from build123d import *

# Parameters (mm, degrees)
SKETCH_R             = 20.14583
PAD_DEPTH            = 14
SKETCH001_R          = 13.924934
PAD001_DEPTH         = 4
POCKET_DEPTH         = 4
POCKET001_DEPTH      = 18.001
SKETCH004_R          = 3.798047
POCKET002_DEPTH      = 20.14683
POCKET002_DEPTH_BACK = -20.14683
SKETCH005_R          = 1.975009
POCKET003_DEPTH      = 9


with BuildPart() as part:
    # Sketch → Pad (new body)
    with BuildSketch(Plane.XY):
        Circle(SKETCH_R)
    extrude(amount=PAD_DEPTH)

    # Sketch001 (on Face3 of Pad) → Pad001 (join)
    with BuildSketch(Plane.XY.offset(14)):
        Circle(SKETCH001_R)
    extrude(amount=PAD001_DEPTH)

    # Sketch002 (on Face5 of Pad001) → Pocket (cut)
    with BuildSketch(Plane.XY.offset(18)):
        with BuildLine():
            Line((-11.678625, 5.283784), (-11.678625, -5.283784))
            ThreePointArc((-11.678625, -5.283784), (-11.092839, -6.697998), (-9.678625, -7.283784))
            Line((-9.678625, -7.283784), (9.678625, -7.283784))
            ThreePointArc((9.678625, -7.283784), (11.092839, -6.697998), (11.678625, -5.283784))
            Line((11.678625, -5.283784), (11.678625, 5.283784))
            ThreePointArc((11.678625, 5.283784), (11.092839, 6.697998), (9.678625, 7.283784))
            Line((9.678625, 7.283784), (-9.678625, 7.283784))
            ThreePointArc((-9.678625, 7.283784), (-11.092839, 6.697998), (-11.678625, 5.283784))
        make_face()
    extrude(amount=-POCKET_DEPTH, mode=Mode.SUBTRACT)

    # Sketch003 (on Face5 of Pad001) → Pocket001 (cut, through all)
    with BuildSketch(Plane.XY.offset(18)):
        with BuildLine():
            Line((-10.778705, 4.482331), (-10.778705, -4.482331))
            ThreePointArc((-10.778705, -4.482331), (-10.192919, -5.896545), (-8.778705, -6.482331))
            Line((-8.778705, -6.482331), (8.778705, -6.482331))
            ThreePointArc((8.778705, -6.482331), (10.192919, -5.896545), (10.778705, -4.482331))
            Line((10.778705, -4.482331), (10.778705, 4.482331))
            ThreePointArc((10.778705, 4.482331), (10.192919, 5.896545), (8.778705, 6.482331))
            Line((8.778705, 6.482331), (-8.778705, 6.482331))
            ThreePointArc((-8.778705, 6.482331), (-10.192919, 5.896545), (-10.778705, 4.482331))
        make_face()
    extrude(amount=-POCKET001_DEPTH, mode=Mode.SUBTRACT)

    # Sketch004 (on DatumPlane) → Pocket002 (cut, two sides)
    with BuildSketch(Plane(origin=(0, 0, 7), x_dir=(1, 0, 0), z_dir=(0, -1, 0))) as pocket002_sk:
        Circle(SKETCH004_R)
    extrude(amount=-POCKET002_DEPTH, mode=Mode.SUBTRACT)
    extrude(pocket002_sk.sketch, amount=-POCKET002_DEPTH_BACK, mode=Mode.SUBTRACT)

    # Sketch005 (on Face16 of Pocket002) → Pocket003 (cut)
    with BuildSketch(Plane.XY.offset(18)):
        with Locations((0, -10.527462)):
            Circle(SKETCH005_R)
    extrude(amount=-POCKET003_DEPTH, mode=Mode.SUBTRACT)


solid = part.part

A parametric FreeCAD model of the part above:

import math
import FreeCAD as App
import Part
import Sketcher

V = App.Vector

doc = App.newDocument("Part")
body = doc.addObject("PartDesign::Body", "Body")

# Sketch on XY plane
sketch1 = doc.addObject("Sketcher::SketchObject", "Sketch")
body.addObject(sketch1)
sketch1.AttachmentSupport = (doc.XY_Plane, [""])
sketch1.MapMode = "FlatFace"
sketch1.addGeometry(Part.Circle(V(0, 0, 0), V(0, 0, 1), 20), False)
sketch1.addConstraint([
    Sketcher.Constraint("Coincident", 0, 3, -1, 1),
    Sketcher.Constraint("Diameter", 0, 40.29166),
])
pad1 = doc.addObject("PartDesign::Pad", "Pad")
body.addObject(pad1)
pad1.Profile = sketch1
pad1.Length = 14

# Sketch on XY plane
sketch2 = doc.addObject("Sketcher::SketchObject", "Sketch001")
body.addObject(sketch2)
sketch2.AttachmentSupport = (doc.XY_Plane, [""])
sketch2.MapMode = "FlatFace"
sketch2.AttachmentOffset = App.Placement(V(0, 0, 14), App.Rotation())
sketch2.addGeometry(Part.Circle(V(0, 0, 0), V(0, 0, 1), 14), False)
sketch2.addConstraint([
    Sketcher.Constraint("Coincident", 0, 3, -1, 1),
    Sketcher.Constraint("Diameter", 0, 27.849868),
])
pad2 = doc.addObject("PartDesign::Pad", "Pad001")
body.addObject(pad2)
pad2.Profile = sketch2
pad2.Length = 4

# Sketch on XY plane
sketch3 = doc.addObject("Sketcher::SketchObject", "Sketch002")
body.addObject(sketch3)
sketch3.AttachmentSupport = (doc.XY_Plane, [""])
sketch3.MapMode = "FlatFace"
sketch3.AttachmentOffset = App.Placement(V(0, 0, 18), App.Rotation())
sketch3.addGeometry([
    Part.LineSegment(V(-11.7, 5.3, 0), V(-11.7, -5.3, 0)),  # 0
    Part.ArcOfCircle(Part.Circle(V(-9.7, -5.3, 0), V(0, 0, 1), 2), math.radians(180), math.radians(270)),  # 1
    Part.LineSegment(V(-9.7, -7.3, 0), V(9.7, -7.3, 0)),  # 2
    Part.ArcOfCircle(Part.Circle(V(9.7, -5.3, 0), V(0, 0, 1), 2), math.radians(-90), math.radians(0)),  # 3
    Part.LineSegment(V(11.7, -5.3, 0), V(11.7, 5.3, 0)),  # 4
    Part.ArcOfCircle(Part.Circle(V(9.7, 5.3, 0), V(0, 0, 1), 2), math.radians(0), math.radians(90)),  # 5
    Part.LineSegment(V(9.7, 7.3, 0), V(-9.7, 7.3, 0)),  # 6
    Part.ArcOfCircle(Part.Circle(V(-9.7, 5.3, 0), V(0, 0, 1), 2), math.radians(90), math.radians(180)),  # 7
], False)
sketch3.addConstraint([
    Sketcher.Constraint("Tangent", 0, 2, 1, 1),
    Sketcher.Constraint("Tangent", 1, 2, 2, 1),
    Sketcher.Constraint("Tangent", 2, 2, 3, 1),
    Sketcher.Constraint("Tangent", 3, 2, 4, 1),
    Sketcher.Constraint("Tangent", 4, 2, 5, 1),
    Sketcher.Constraint("Tangent", 5, 2, 6, 1),
    Sketcher.Constraint("Tangent", 6, 2, 7, 1),
    Sketcher.Constraint("Tangent", 7, 2, 0, 1),
    Sketcher.Constraint("Vertical", 0),
    Sketcher.Constraint("Horizontal", 2),
    Sketcher.Constraint("Vertical", 4),
    Sketcher.Constraint("Horizontal", 6),
    Sketcher.Constraint("Equal", 1, 3),
    Sketcher.Constraint("Equal", 3, 5),
    Sketcher.Constraint("Equal", 5, 7),
    Sketcher.Constraint("Symmetric", 1, 3, 5, 3, -1, 1),
    Sketcher.Constraint("Radius", 1, 1.999999),
    Sketcher.Constraint("DistanceX", 2, 1, 2, 2, 19.35725),
    Sketcher.Constraint("DistanceY", 0, 2, 0, 1, 10.567568),
])
pocket1 = doc.addObject("PartDesign::Pocket", "Pocket")
body.addObject(pocket1)
pocket1.Profile = sketch3
pocket1.Length = 4

# Sketch on XY plane
sketch4 = doc.addObject("Sketcher::SketchObject", "Sketch003")
body.addObject(sketch4)
sketch4.AttachmentSupport = (doc.XY_Plane, [""])
sketch4.MapMode = "FlatFace"
sketch4.AttachmentOffset = App.Placement(V(0, 0, 18), App.Rotation())
sketch4.addGeometry([
    Part.LineSegment(V(-10.8, 4.5, 0), V(-10.8, -4.5, 0)),  # 0
    Part.ArcOfCircle(Part.Circle(V(-8.8, -4.5, 0), V(0, 0, 1), 2), math.radians(180), math.radians(270)),  # 1
    Part.LineSegment(V(-8.8, -6.5, 0), V(8.8, -6.5, 0)),  # 2
    Part.ArcOfCircle(Part.Circle(V(8.8, -4.5, 0), V(0, 0, 1), 2), math.radians(-90), math.radians(0)),  # 3
    Part.LineSegment(V(10.8, -4.5, 0), V(10.8, 4.5, 0)),  # 4
    Part.ArcOfCircle(Part.Circle(V(8.8, 4.5, 0), V(0, 0, 1), 2), math.radians(0), math.radians(90)),  # 5
    Part.LineSegment(V(8.8, 6.5, 0), V(-8.8, 6.5, 0)),  # 6
    Part.ArcOfCircle(Part.Circle(V(-8.8, 4.5, 0), V(0, 0, 1), 2), math.radians(90), math.radians(180)),  # 7
], False)
sketch4.addConstraint([
    Sketcher.Constraint("Tangent", 0, 2, 1, 1),
    Sketcher.Constraint("Tangent", 1, 2, 2, 1),
    Sketcher.Constraint("Tangent", 2, 2, 3, 1),
    Sketcher.Constraint("Tangent", 3, 2, 4, 1),
    Sketcher.Constraint("Tangent", 4, 2, 5, 1),
    Sketcher.Constraint("Tangent", 5, 2, 6, 1),
    Sketcher.Constraint("Tangent", 6, 2, 7, 1),
    Sketcher.Constraint("Tangent", 7, 2, 0, 1),
    Sketcher.Constraint("Vertical", 0),
    Sketcher.Constraint("Horizontal", 2),
    Sketcher.Constraint("Vertical", 4),
    Sketcher.Constraint("Horizontal", 6),
    Sketcher.Constraint("Equal", 1, 3),
    Sketcher.Constraint("Equal", 3, 5),
    Sketcher.Constraint("Equal", 5, 7),
    Sketcher.Constraint("Symmetric", 1, 3, 5, 3, -1, 1),
    Sketcher.Constraint("Radius", 1, 1.999999),
    Sketcher.Constraint("DistanceX", 2, 1, 2, 2, 17.55741),
    Sketcher.Constraint("DistanceY", 0, 2, 0, 1, 8.964662),
])
pocket2 = doc.addObject("PartDesign::Pocket", "Pocket001")
body.addObject(pocket2)
pocket2.Profile = sketch4
pocket2.Type = "ThroughAll"

# Sketch on XZ plane
sketch5 = doc.addObject("Sketcher::SketchObject", "Sketch004")
body.addObject(sketch5)
sketch5.AttachmentSupport = (doc.XZ_Plane, [""])
sketch5.MapMode = "FlatFace"
sketch5.addGeometry(Part.Circle(V(0, 7, 0), V(0, 0, 1), 3.8), False)
sketch5.addConstraint([
    Sketcher.Constraint("PointOnObject", 0, 3, -2),
    Sketcher.Constraint("DistanceY", -1, 1, 0, 3, 7.0),
    Sketcher.Constraint("Diameter", 0, 7.596094),
])
pocket3 = doc.addObject("PartDesign::Pocket", "Pocket002")
body.addObject(pocket3)
pocket3.Profile = sketch5
pocket3.Type = "ThroughAll"
pocket3.Midplane = True

# Sketch on XY plane
sketch6 = doc.addObject("Sketcher::SketchObject", "Sketch005")
body.addObject(sketch6)
sketch6.AttachmentSupport = (doc.XY_Plane, [""])
sketch6.MapMode = "FlatFace"
sketch6.AttachmentOffset = App.Placement(V(0, 0, 18), App.Rotation())
sketch6.addGeometry(Part.Circle(V(0, -10.5, 0), V(0, 0, 1), 2), False)
sketch6.addConstraint([
    Sketcher.Constraint("PointOnObject", 0, 3, -2),
    Sketcher.Constraint("Diameter", 0, 3.950018),
    Sketcher.Constraint("DistanceY", 0, 3, -1, 1, 10.527462),
])
pocket4 = doc.addObject("PartDesign::Pocket", "Pocket003")
body.addObject(pocket4)
pocket4.Profile = sketch6
pocket4.Length = 9

doc.recompute()
